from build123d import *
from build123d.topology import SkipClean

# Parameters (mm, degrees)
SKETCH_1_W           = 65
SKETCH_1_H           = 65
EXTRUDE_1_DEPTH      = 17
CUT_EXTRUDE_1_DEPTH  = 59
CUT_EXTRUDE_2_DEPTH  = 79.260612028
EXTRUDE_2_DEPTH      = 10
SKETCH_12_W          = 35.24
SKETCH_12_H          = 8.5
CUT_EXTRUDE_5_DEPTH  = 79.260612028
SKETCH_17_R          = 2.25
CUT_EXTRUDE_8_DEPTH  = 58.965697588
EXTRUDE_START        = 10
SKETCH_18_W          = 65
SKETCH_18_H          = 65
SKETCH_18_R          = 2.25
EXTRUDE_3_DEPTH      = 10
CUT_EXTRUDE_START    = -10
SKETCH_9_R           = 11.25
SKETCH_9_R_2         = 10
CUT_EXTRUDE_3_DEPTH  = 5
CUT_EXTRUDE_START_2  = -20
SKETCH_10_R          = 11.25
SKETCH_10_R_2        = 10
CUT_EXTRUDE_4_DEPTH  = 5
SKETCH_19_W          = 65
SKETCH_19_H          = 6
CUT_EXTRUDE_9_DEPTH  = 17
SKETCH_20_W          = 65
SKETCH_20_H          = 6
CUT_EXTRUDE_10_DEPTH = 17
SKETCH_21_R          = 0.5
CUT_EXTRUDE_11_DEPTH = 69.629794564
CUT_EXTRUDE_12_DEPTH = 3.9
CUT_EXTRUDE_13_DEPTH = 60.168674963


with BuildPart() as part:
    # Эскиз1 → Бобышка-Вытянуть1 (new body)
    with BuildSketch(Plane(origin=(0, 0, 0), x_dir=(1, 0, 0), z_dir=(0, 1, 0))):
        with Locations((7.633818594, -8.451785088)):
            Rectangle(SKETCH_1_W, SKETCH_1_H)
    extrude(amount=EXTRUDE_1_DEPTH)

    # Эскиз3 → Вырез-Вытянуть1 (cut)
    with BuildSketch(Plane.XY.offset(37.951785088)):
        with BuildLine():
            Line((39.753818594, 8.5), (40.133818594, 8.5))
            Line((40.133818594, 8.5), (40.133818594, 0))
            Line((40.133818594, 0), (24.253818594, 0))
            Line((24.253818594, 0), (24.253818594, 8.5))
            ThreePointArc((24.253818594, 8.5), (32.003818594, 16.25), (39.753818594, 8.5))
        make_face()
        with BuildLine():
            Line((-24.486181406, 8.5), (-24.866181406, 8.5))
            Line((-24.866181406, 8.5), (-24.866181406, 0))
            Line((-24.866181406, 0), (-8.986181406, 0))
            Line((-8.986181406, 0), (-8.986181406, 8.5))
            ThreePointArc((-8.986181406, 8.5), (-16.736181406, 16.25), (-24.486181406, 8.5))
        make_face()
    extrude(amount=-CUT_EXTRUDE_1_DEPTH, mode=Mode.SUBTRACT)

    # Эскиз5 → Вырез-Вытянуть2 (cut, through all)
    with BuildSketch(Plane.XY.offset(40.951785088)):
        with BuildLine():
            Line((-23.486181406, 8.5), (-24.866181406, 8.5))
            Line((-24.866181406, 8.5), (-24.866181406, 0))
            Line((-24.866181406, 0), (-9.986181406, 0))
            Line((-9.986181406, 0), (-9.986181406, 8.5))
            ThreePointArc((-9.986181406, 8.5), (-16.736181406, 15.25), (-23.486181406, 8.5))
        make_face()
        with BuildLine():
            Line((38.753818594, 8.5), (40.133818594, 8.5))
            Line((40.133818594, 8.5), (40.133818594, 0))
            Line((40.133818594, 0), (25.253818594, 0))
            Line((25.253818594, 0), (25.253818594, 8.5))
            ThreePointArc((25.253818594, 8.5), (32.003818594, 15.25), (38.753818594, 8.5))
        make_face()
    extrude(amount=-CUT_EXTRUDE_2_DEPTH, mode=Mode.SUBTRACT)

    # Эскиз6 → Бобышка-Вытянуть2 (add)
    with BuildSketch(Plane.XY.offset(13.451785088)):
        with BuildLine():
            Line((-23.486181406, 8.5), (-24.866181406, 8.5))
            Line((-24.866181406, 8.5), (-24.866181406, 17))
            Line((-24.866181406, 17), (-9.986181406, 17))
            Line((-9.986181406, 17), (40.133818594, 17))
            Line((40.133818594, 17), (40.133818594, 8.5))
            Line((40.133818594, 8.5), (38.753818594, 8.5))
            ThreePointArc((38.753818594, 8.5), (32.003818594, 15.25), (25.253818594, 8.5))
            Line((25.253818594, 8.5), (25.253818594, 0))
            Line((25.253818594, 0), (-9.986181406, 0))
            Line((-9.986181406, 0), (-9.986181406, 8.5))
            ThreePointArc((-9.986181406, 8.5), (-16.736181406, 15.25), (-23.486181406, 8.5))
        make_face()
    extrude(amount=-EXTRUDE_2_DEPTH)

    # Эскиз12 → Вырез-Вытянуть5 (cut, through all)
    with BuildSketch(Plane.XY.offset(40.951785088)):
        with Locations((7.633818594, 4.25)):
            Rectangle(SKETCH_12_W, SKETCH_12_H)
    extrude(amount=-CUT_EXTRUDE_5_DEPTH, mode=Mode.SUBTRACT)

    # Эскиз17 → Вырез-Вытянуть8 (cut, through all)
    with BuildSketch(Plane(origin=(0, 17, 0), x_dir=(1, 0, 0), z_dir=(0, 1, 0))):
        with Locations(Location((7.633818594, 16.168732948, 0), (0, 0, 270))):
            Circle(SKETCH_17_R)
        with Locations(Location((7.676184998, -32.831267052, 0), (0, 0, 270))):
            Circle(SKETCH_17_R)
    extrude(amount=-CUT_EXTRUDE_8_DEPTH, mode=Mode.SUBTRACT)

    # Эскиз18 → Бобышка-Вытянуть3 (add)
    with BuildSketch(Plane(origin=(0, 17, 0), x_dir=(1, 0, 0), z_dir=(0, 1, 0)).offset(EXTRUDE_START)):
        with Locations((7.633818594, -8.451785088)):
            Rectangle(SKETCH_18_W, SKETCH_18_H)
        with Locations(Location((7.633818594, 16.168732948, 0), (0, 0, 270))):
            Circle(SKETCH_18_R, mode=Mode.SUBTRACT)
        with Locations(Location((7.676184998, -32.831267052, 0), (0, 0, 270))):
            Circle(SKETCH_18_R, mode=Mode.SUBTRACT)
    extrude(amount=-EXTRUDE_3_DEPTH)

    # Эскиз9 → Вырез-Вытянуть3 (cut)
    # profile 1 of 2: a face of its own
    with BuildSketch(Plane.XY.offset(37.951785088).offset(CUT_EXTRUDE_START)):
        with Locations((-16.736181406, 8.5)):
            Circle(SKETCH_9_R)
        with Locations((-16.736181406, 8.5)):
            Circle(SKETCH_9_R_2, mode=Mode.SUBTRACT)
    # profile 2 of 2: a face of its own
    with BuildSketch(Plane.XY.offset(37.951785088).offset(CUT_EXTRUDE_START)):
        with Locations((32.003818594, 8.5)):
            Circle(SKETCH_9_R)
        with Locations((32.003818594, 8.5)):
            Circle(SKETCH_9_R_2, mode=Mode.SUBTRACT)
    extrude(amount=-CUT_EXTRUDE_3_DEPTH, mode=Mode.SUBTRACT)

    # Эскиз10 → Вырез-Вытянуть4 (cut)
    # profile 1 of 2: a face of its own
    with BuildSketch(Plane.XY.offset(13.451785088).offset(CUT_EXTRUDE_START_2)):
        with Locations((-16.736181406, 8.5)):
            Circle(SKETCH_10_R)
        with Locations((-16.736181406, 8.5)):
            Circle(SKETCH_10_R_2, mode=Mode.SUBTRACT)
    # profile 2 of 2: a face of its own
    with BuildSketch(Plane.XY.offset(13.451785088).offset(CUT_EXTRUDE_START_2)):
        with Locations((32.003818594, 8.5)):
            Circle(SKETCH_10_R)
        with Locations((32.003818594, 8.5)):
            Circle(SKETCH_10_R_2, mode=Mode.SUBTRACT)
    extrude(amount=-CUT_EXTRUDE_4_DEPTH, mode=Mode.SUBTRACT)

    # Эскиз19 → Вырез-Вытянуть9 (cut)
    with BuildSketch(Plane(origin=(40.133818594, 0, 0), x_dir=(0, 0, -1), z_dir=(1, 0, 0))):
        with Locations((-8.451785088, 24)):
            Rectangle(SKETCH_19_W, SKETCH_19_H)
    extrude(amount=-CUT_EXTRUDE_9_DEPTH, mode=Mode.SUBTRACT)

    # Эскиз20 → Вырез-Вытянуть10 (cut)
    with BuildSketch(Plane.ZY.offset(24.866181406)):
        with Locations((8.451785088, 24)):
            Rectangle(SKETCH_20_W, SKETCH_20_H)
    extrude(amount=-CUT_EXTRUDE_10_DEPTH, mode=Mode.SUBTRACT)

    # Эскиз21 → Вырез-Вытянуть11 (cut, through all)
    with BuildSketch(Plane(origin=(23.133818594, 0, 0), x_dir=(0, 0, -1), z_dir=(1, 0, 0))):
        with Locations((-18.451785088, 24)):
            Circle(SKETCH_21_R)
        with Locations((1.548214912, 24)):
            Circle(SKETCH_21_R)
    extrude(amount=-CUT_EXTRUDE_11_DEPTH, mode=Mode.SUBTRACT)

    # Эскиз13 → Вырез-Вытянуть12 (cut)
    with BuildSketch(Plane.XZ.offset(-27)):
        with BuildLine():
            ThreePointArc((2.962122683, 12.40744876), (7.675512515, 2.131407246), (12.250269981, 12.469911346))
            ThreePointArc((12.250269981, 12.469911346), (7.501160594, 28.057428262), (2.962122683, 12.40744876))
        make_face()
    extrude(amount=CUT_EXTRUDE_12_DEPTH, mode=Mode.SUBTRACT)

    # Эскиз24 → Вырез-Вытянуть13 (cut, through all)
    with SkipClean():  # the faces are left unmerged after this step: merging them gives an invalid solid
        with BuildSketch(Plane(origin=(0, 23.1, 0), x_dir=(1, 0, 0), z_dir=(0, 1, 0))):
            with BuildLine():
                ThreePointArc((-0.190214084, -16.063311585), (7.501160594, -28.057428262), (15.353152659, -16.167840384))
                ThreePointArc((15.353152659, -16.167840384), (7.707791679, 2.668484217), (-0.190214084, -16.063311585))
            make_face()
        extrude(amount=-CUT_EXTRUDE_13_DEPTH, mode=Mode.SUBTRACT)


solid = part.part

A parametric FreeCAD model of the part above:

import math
import FreeCAD as App
import Part
import Sketcher

V = App.Vector


def add_polygon(sketch, points):
    """Adds a closed chain of lines whose ends are joined by coincident constraints."""
    first, n = sketch.GeometryCount, len(points)
    for a, b in zip(points, points[1:] + points[:1]):
        sketch.addGeometry(Part.LineSegment(App.Vector(*a, 0), App.Vector(*b, 0)), False)
    for i in range(n):
        sketch.addConstraint(Sketcher.Constraint("Coincident", first + i, 2, first + (i + 1) % n, 1))

doc = App.newDocument("Part")
body = doc.addObject("PartDesign::Body", "Body")

# Sketch on XZ plane
sketch1 = doc.addObject("Sketcher::SketchObject", "Sketch")
body.addObject(sketch1)
sketch1.AttachmentSupport = (doc.XZ_Plane, [""])
sketch1.MapMode = "FlatFace"
add_polygon(sketch1, [(-25, -24), (-25, 41), (40, 41), (40, -24)])  # lines 0-3
sketch1.addConstraint(Sketcher.Constraint("Vertical", 0))
sketch1.addConstraint(Sketcher.Constraint("Horizontal", 1))
sketch1.addConstraint(Sketcher.Constraint("Vertical", 2))
sketch1.addConstraint(Sketcher.Constraint("Horizontal", 3))
sketch1.addConstraint(Sketcher.Constraint("Equal", 3, 0))
sketch1.addConstraint(Sketcher.Constraint("DistanceX", 1, 1, 1, 2, 65.0))
sketch1.addConstraint(Sketcher.Constraint("DistanceX", 0, 2, -1, 1, 24.866181))
sketch1.addConstraint(Sketcher.Constraint("DistanceY", -1, 1, 0, 2, 40.951785))
pad1 = doc.addObject("PartDesign::Pad", "Pad")
body.addObject(pad1)
pad1.Profile = sketch1
pad1.Length = 17
pad1.Reversed = True

# Sketch on XY plane
sketch2 = doc.addObject("Sketcher::SketchObject", "Sketch001")
body.addObject(sketch2)
sketch2.AttachmentSupport = (doc.XY_Plane, [""])
sketch2.MapMode = "FlatFace"
sketch2.AttachmentOffset = App.Placement(V(0, 0, 37.951785), App.Rotation())
sketch2.addGeometry(Part.LineSegment(V(40.13, 8.5, 0), V(39.75, 8.5, 0)), False)
sketch2.addGeometry(Part.ArcOfCircle(Part.Circle(V(32, 8.5, 0), V(0, 0, 1), 7.75), math.radians(0), math.radians(180)), False)
sketch2.addGeometry(Part.LineSegment(V(24.25, 8.5, 0), V(24.25, 0, 0)), False)
sketch2.addGeometry(Part.LineSegment(V(24.25, 0, 0), V(40.13, 0, 0)), False)
sketch2.addGeometry(Part.LineSegment(V(40.13, 0, 0), V(40.13, 8.5, 0)), False)
sketch2.addGeometry(Part.LineSegment(V(-24.49, 8.5, 0), V(-24.87, 8.5, 0)), False)
sketch2.addGeometry(Part.LineSegment(V(-24.87, 8.5, 0), V(-24.87, 0, 0)), False)
sketch2.addGeometry(Part.LineSegment(V(-24.87, 0, 0), V(-8.99, 0, 0)), False)
sketch2.addGeometry(Part.LineSegment(V(-8.99, 0, 0), V(-8.99, 8.5, 0)), False)
sketch2.addGeometry(Part.ArcOfCircle(Part.Circle(V(-16.74, 8.5, 0), V(0, 0, 1), 7.75), math.radians(0), math.radians(180)), False)
sketch2.addConstraint(Sketcher.Constraint("Coincident", 0, 2, 1, 1))
sketch2.addConstraint(Sketcher.Constraint("Tangent", 1, 2, 2, 1))
sketch2.addConstraint(Sketcher.Constraint("Coincident", 2, 2, 3, 1))
sketch2.addConstraint(Sketcher.Constraint("Coincident", 3, 2, 4, 1))
sketch2.addConstraint(Sketcher.Constraint("Coincident", 4, 2, 0, 1))
sketch2.addConstraint(Sketcher.Constraint("Coincident", 5, 2, 6, 1))
sketch2.addConstraint(Sketcher.Constraint("Coincident", 6, 2, 7, 1))
sketch2.addConstraint(Sketcher.Constraint("Coincident", 7, 2, 8, 1))
sketch2.addConstraint(Sketcher.Constraint("Tangent", 8, 2, 9, 1))
sketch2.addConstraint(Sketcher.Constraint("Coincident", 9, 2, 5, 1))
sketch2.addConstraint(Sketcher.Constraint("Horizontal", 0))
sketch2.addConstraint(Sketcher.Constraint("Vertical", 2))
sketch2.addConstraint(Sketcher.Constraint("Horizontal", 3))
sketch2.addConstraint(Sketcher.Constraint("Vertical", 4))
sketch2.addConstraint(Sketcher.Constraint("Horizontal", 5))
sketch2.addConstraint(Sketcher.Constraint("Vertical", 6))
sketch2.addConstraint(Sketcher.Constraint("Horizontal", 7))
sketch2.addConstraint(Sketcher.Constraint("Vertical", 8))
sketch2.addConstraint(Sketcher.Constraint("Equal", 1, 9))
sketch2.addConstraint(Sketcher.Constraint("PointOnObject", 2, 2, -1))
sketch2.addConstraint(Sketcher.Constraint("PointOnObject", 6, 2, -1))
sketch2.addConstraint(Sketcher.Constraint("Horizontal", 1, 3, 9, 3))
sketch2.addConstraint(Sketcher.Constraint("Horizontal", 9, 3, 0, 2))
sketch2.addConstraint(Sketcher.Constraint("Horizontal", 4, 2, 5, 2))
sketch2.addConstraint(Sketcher.Constraint("Equal", 0, 5))
sketch2.addConstraint(Sketcher.Constraint("Radius", 1, 7.75))
sketch2.addConstraint(Sketcher.Constraint("DistanceY", 2, 2, 2, 1, 8.5))
sketch2.addConstraint(Sketcher.Constraint("DistanceX", 0, 2, 0, 1, 0.38))
sketch2.addConstraint(Sketcher.Constraint("DistanceX", 9, 3, 1, 3, 48.74))
sketch2.addConstraint(Sketcher.Constraint("DistanceX", -1, 1, 1, 3, 32.003819))
pocket1 = doc.addObject("PartDesign::Pocket", "Pocket")
body.addObject(pocket1)
pocket1.Profile = sketch2
pocket1.Length = 59

# Sketch on XY plane
sketch3 = doc.addObject("Sketcher::SketchObject", "Sketch002")
body.addObject(sketch3)
sketch3.AttachmentSupport = (doc.XY_Plane, [""])
sketch3.MapMode = "FlatFace"
sketch3.AttachmentOffset = App.Placement(V(0, 0, 40.951785), App.Rotation())
sketch3.addGeometry(Part.LineSegment(V(-23.5, 8.5, 0), V(-24.9, 8.5, 0)), False)
sketch3.addGeometry(Part.LineSegment(V(-24.9, 8.5, 0), V(-24.9, 0, 0)), False)
sketch3.addGeometry(Part.LineSegment(V(-24.9, 0, 0), V(-10, 0, 0)), False)
sketch3.addGeometry(Part.LineSegment(V(-10, 0, 0), V(-10, 8.5, 0)), False)
sketch3.addGeometry(Part.ArcOfCircle(Part.Circle(V(-16.7, 8.5, 0), V(0, 0, 1), 6.8), math.radians(0), math.radians(180)), False)
sketch3.addGeometry(Part.LineSegment(V(40.1, 8.5, 0), V(38.8, 8.5, 0)), False)
sketch3.addGeometry(Part.ArcOfCircle(Part.Circle(V(32, 8.5, 0), V(0, 0, 1), 6.8), math.radians(0), math.radians(180)), False)
sketch3.addGeometry(Part.LineSegment(V(25.3, 8.5, 0), V(25.3, 0, 0)), False)
sketch3.addGeometry(Part.LineSegment(V(25.3, 0, 0), V(40.1, 0, 0)), False)
sketch3.addGeometry(Part.LineSegment(V(40.1, 0, 0), V(40.1, 8.5, 0)), False)
sketch3.addConstraint(Sketcher.Constraint("Coincident", 0, 2, 1, 1))
sketch3.addConstraint(Sketcher.Constraint("Coincident", 1, 2, 2, 1))
sketch3.addConstraint(Sketcher.Constraint("Coincident", 2, 2, 3, 1))
sketch3.addConstraint(Sketcher.Constraint("Tangent", 3, 2, 4, 1))
sketch3.addConstraint(Sketcher.Constraint("Coincident", 4, 2, 0, 1))
sketch3.addConstraint(Sketcher.Constraint("Coincident", 5, 2, 6, 1))
sketch3.addConstraint(Sketcher.Constraint("Tangent", 6, 2, 7, 1))
sketch3.addConstraint(Sketcher.Constraint("Coincident", 7, 2, 8, 1))
sketch3.addConstraint(Sketcher.Constraint("Coincident", 8, 2, 9, 1))
sketch3.addConstraint(Sketcher.Constraint("Coincident", 9, 2, 5, 1))
sketch3.addConstraint(Sketcher.Constraint("Horizontal", 0))
sketch3.addConstraint(Sketcher.Constraint("Vertical", 1))
sketch3.addConstraint(Sketcher.Constraint("Horizontal", 2))
sketch3.addConstraint(Sketcher.Constraint("Vertical", 3))
sketch3.addConstraint(Sketcher.Constraint("Horizontal", 5))
sketch3.addConstraint(Sketcher.Constraint("Vertical", 7))
sketch3.addConstraint(Sketcher.Constraint("Horizontal", 8))
sketch3.addConstraint(Sketcher.Constraint("Vertical", 9))
sketch3.addConstraint(Sketcher.Constraint("Equal", 4, 6))
sketch3.addConstraint(Sketcher.Constraint("PointOnObject", 1, 2, -1))
sketch3.addConstraint(Sketcher.Constraint("PointOnObject", 7, 2, -1))
sketch3.addConstraint(Sketcher.Constraint("Horizontal", 4, 3, 6, 3))
sketch3.addConstraint(Sketcher.Constraint("Horizontal", 6, 3, 0, 2))
sketch3.addConstraint(Sketcher.Constraint("Horizontal", 4, 2, 5, 2))
sketch3.addConstraint(Sketcher.Constraint("Equal", 0, 5))
sketch3.addConstraint(Sketcher.Constraint("Radius", 4, 6.75))
sketch3.addConstraint(Sketcher.Constraint("DistanceY", 1, 2, 1, 1, 8.5))
sketch3.addConstraint(Sketcher.Constraint("DistanceX", 0, 2, 0, 1, 1.38))
sketch3.addConstraint(Sketcher.Constraint("DistanceX", 4, 3, 6, 3, 48.74))
sketch3.addConstraint(Sketcher.Constraint("DistanceX", 4, 3, -1, 1, 16.736181))
pocket2 = doc.addObject("PartDesign::Pocket", "Pocket001")
body.addObject(pocket2)
pocket2.Profile = sketch3
pocket2.Type = "ThroughAll"

# Sketch on XY plane
sketch4 = doc.addObject("Sketcher::SketchObject", "Sketch003")
body.addObject(sketch4)
sketch4.AttachmentSupport = (doc.XY_Plane, [""])
sketch4.MapMode = "FlatFace"
sketch4.AttachmentOffset = App.Placement(V(0, 0, 13.451785), App.Rotation())
sketch4.addGeometry(Part.LineSegment(V(-24.9, 8.5, 0), V(-23.5, 8.5, 0)), False)
sketch4.addGeometry(Part.ArcOfCircle(Part.Circle(V(-16.7, 8.5, 0), V(0, 0, 1), 6.8), math.radians(0), math.radians(180)), False)
sketch4.addGeometry(Part.LineSegment(V(-10, 8.5, 0), V(-10, 0, 0)), False)
sketch4.addGeometry(Part.LineSegment(V(-10, 0, 0), V(25.3, 0, 0)), False)
sketch4.addGeometry(Part.LineSegment(V(25.3, 0, 0), V(25.3, 8.5, 0)), False)
sketch4.addGeometry(Part.ArcOfCircle(Part.Circle(V(32, 8.5, 0), V(0, 0, 1), 6.8), math.radians(0), math.radians(180)), False)
sketch4.addGeometry(Part.LineSegment(V(38.8, 8.5, 0), V(40.1, 8.5, 0)), False)
sketch4.addGeometry(Part.LineSegment(V(40.1, 8.5, 0), V(40.1, 17, 0)), False)
sketch4.addGeometry(Part.LineSegment(V(40.1, 17, 0), V(-24.9, 17, 0)), False)
sketch4.addGeometry(Part.LineSegment(V(-24.9, 17, 0), V(-24.9, 8.5, 0)), False)
sketch4.addConstraint(Sketcher.Constraint("Coincident", 0, 2, 1, 2))
sketch4.addConstraint(Sketcher.Constraint("Tangent", 1, 1, 2, 1))
sketch4.addConstraint(Sketcher.Constraint("Coincident", 2, 2, 3, 1))
sketch4.addConstraint(Sketcher.Constraint("Coincident", 3, 2, 4, 1))
sketch4.addConstraint(Sketcher.Constraint("Tangent", 4, 2, 5, 2))
sketch4.addConstraint(Sketcher.Constraint("Coincident", 5, 1, 6, 1))
sketch4.addConstraint(Sketcher.Constraint("Coincident", 6, 2, 7, 1))
sketch4.addConstraint(Sketcher.Constraint("Coincident", 7, 2, 8, 1))
sketch4.addConstraint(Sketcher.Constraint("Coincident", 8, 2, 9, 1))
sketch4.addConstraint(Sketcher.Constraint("Coincident", 9, 2, 0, 1))
sketch4.addConstraint(Sketcher.Constraint("Horizontal", 0))
sketch4.addConstraint(Sketcher.Constraint("Vertical", 2))
sketch4.addConstraint(Sketcher.Constraint("Horizontal", 3))
sketch4.addConstraint(Sketcher.Constraint("Vertical", 4))
sketch4.addConstraint(Sketcher.Constraint("Horizontal", 6))
sketch4.addConstraint(Sketcher.Constraint("Vertical", 7))
sketch4.addConstraint(Sketcher.Constraint("Horizontal", 8))
sketch4.addConstraint(Sketcher.Constraint("Vertical", 9))
sketch4.addConstraint(Sketcher.Constraint("Equal", 1, 5))
sketch4.addConstraint(Sketcher.Constraint("PointOnObject", 2, 2, -1))
sketch4.addConstraint(Sketcher.Constraint("Horizontal", 1, 3, 5, 3))
sketch4.addConstraint(Sketcher.Constraint("Horizontal", 5, 3, 0, 2))
sketch4.addConstraint(Sketcher.Constraint("Horizontal", 4, 2, 5, 1))
sketch4.addConstraint(Sketcher.Constraint("Equal", 0, 6))
sketch4.addConstraint(Sketcher.Constraint("Equal", 4, 7))
sketch4.addConstraint(Sketcher.Constraint("DistanceX", 8, 2, 8, 1, 65.0))
sketch4.addConstraint(Sketcher.Constraint("Radius", 1, 6.75))
sketch4.addConstraint(Sketcher.Constraint("DistanceY", 2, 2, 2, 1, 8.5))
sketch4.addConstraint(Sketcher.Constraint("DistanceX", 0, 1, 0, 2, 1.38))
sketch4.addConstraint(Sketcher.Constraint("DistanceX", 1, 3, -1, 1, 16.736181))
pad2 = doc.addObject("PartDesign::Pad", "Pad001")
body.addObject(pad2)
pad2.Profile = sketch4
pad2.Length = 10
pad2.Reversed = True

# Sketch on XY plane
sketch5 = doc.addObject("Sketcher::SketchObject", "Sketch004")
body.addObject(sketch5)
sketch5.AttachmentSupport = (doc.XY_Plane, [""])
sketch5.MapMode = "FlatFace"
sketch5.AttachmentOffset = App.Placement(V(0, 0, 40.951785), App.Rotation())
add_polygon(sketch5, [(-10, 8), (-10, 0), (25, 0), (25, 8)])  # lines 0-3
sketch5.addConstraint(Sketcher.Constraint("Vertical", 0))
sketch5.addConstraint(Sketcher.Constraint("Horizontal", 1))
sketch5.addConstraint(Sketcher.Constraint("Vertical", 2))
sketch5.addConstraint(Sketcher.Constraint("Horizontal", 3))
sketch5.addConstraint(Sketcher.Constraint("PointOnObject", 0, 2, -1))
sketch5.addConstraint(Sketcher.Constraint("DistanceY", 0, 2, 0, 1, 8.5))
sketch5.addConstraint(Sketcher.Constraint("DistanceX", 1, 1, 1, 2, 35.24))
sketch5.addConstraint(Sketcher.Constraint("DistanceX", 0, 2, -1, 1, 9.986181))
pocket3 = doc.addObject("PartDesign::Pocket", "Pocket002")
body.addObject(pocket3)
pocket3.Profile = sketch5
pocket3.Type = "ThroughAll"

# Sketch on XZ plane
sketch6 = doc.addObject("Sketcher::SketchObject", "Sketch005")
body.addObject(sketch6)
sketch6.AttachmentSupport = (doc.XZ_Plane, [""])
sketch6.MapMode = "FlatFace"
sketch6.AttachmentOffset = App.Placement(V(0, 0, -17), App.Rotation())
sketch6.addGeometry(Part.Circle(V(7.6, -16.2, 0), V(0, 0, 1), 2.2), False)
sketch6.addGeometry(Part.Circle(V(7.7, 32.8, 0), V(0, 0, 1), 2.2), False)
sketch6.addConstraint(Sketcher.Constraint("Equal", 0, 1))
sketch6.addConstraint(Sketcher.Constraint("Diameter", 0, 4.5))
sketch6.addConstraint(Sketcher.Constraint("DistanceY", 0, 3, 1, 3, 49.0))
sketch6.addConstraint(Sketcher.Constraint("DistanceX", -1, 1, 0, 3, 7.633819))
sketch6.addConstraint(Sketcher.Constraint("DistanceY", 0, 3, -1, 1, 16.168733))
sketch6.addConstraint(Sketcher.Constraint("DistanceX", -1, 1, 1, 3, 7.676185))
pocket4 = doc.addObject("PartDesign::Pocket", "Pocket003")
body.addObject(pocket4)
pocket4.Profile = sketch6
pocket4.Type = "ThroughAll"
pocket4.Reversed = True

# Sketch on XZ plane
sketch7 = doc.addObject("Sketcher::SketchObject", "Sketch006")
body.addObject(sketch7)
sketch7.AttachmentSupport = (doc.XZ_Plane, [""])
sketch7.MapMode = "FlatFace"
sketch7.AttachmentOffset = App.Placement(V(0, 0, -27), App.Rotation())
add_polygon(sketch7, [(-24.9, -24), (-24.9, 41), (40.1, 41), (40.1, -24)])  # lines 0-3
sketch7.addGeometry(Part.Circle(V(7.7, 32.8, 0), V(0, 0, 1), 2.2), False)  # 4
sketch7.addGeometry(Part.Circle(V(7.6, -16.2, 0), V(0, 0, 1), 2.2), False)  # 5
sketch7.addConstraint(Sketcher.Constraint("Vertical", 0))
sketch7.addConstraint(Sketcher.Constraint("Horizontal", 1))
sketch7.addConstraint(Sketcher.Constraint("Vertical", 2))
sketch7.addConstraint(Sketcher.Constraint("Horizontal", 3))
sketch7.addConstraint(Sketcher.Constraint("Equal", 4, 5))
sketch7.addConstraint(Sketcher.Constraint("Equal", 3, 0))
sketch7.addConstraint(Sketcher.Constraint("Diameter", 4, 4.5))
sketch7.addConstraint(Sketcher.Constraint("DistanceX", 1, 1, 1, 2, 65.0))
sketch7.addConstraint(Sketcher.Constraint("DistanceY", 5, 3, 4, 3, 49.0))
sketch7.addConstraint(Sketcher.Constraint("DistanceX", 0, 2, 5, 3, 32.5))
sketch7.addConstraint(Sketcher.Constraint("DistanceX", -1, 1, 5, 3, 7.633819))
sketch7.addConstraint(Sketcher.Constraint("DistanceY", 4, 3, 0, 2, 8.120518))
sketch7.addConstraint(Sketcher.Constraint("DistanceX", -1, 1, 4, 3, 7.676185))
sketch7.addConstraint(Sketcher.Constraint("DistanceY", -1, 1, 4, 3, 32.831267))
pad3 = doc.addObject("PartDesign::Pad", "Pad002")
body.addObject(pad3)
pad3.Profile = sketch7
pad3.Length = 10

# Sketch on XY plane
sketch8 = doc.addObject("Sketcher::SketchObject", "Sketch007")
body.addObject(sketch8)
sketch8.AttachmentSupport = (doc.XY_Plane, [""])
sketch8.MapMode = "FlatFace"
sketch8.AttachmentOffset = App.Placement(V(0, 0, 27.951785), App.Rotation())
sketch8.addGeometry(Part.Circle(V(-17, 8, 0), V(0, 0, 1), 11), False)
sketch8.addGeometry(Part.Circle(V(-17, 8, 0), V(0, 0, 1), 10), False)
sketch8.addGeometry(Part.Circle(V(32, 8, 0), V(0, 0, 1), 11), False)
sketch8.addGeometry(Part.Circle(V(32, 8, 0), V(0, 0, 1), 10), False)
sketch8.addConstraint(Sketcher.Constraint("Coincident", 1, 3, 0, 3))
sketch8.addConstraint(Sketcher.Constraint("Coincident", 3, 3, 2, 3))
sketch8.addConstraint(Sketcher.Constraint("Equal", 0, 2))
sketch8.addConstraint(Sketcher.Constraint("Equal", 1, 3))
sketch8.addConstraint(Sketcher.Constraint("Horizontal", 1, 3, 2, 3))
sketch8.addConstraint(Sketcher.Constraint("Diameter", 1, 20.0))
sketch8.addConstraint(Sketcher.Constraint("Diameter", 0, 22.5))
sketch8.addConstraint(Sketcher.Constraint("DistanceY", -1, 1, 0, 3, 8.5))
sketch8.addConstraint(Sketcher.Constraint("DistanceX", 0, 3, 2, 3, 48.74))
sketch8.addConstraint(Sketcher.Constraint("DistanceX", 0, 3, -1, 1, 16.736181))
pocket5 = doc.addObject("PartDesign::Pocket", "Pocket004")
body.addObject(pocket5)
pocket5.Profile = sketch8
pocket5.Length = 5

# Sketch on XY plane
sketch9 = doc.addObject("Sketcher::SketchObject", "Sketch008")
body.addObject(sketch9)
sketch9.AttachmentSupport = (doc.XY_Plane, [""])
sketch9.MapMode = "FlatFace"
sketch9.AttachmentOffset = App.Placement(V(0, 0, -6.548215), App.Rotation())
sketch9.addGeometry(Part.Circle(V(-17, 8, 0), V(0, 0, 1), 11), False)
sketch9.addGeometry(Part.Circle(V(-17, 8, 0), V(0, 0, 1), 10), False)
sketch9.addGeometry(Part.Circle(V(32, 8, 0), V(0, 0, 1), 11), False)
sketch9.addGeometry(Part.Circle(V(32, 8, 0), V(0, 0, 1), 10), False)
sketch9.addConstraint(Sketcher.Constraint("Coincident", 1, 3, 0, 3))
sketch9.addConstraint(Sketcher.Constraint("Coincident", 3, 3, 2, 3))
sketch9.addConstraint(Sketcher.Constraint("Equal", 0, 2))
sketch9.addConstraint(Sketcher.Constraint("Equal", 1, 3))
sketch9.addConstraint(Sketcher.Constraint("Horizontal", 1, 3, 2, 3))
sketch9.addConstraint(Sketcher.Constraint("Diameter", 1, 20.0))
sketch9.addConstraint(Sketcher.Constraint("Diameter", 0, 22.5))
sketch9.addConstraint(Sketcher.Constraint("DistanceY", -1, 1, 0, 3, 8.5))
sketch9.addConstraint(Sketcher.Constraint("DistanceX", 0, 3, 2, 3, 48.74))
sketch9.addConstraint(Sketcher.Constraint("DistanceX", 0, 3, -1, 1, 16.736181))
pocket6 = doc.addObject("PartDesign::Pocket", "Pocket005")
body.addObject(pocket6)
pocket6.Profile = sketch9
pocket6.Length = 5

# Sketch on YZ plane
sketch10 = doc.addObject("Sketcher::SketchObject", "Sketch009")
body.addObject(sketch10)
sketch10.AttachmentSupport = (doc.YZ_Plane, [""])
sketch10.MapMode = "FlatFace"
sketch10.AttachmentOffset = App.Placement(V(0, 0, 40.133819), App.Rotation())
add_polygon(sketch10, [(27, 41), (21, 41), (21, -24), (27, -24)])  # lines 0-3
sketch10.addConstraint(Sketcher.Constraint("Horizontal", 0))
sketch10.addConstraint(Sketcher.Constraint("Vertical", 1))
sketch10.addConstraint(Sketcher.Constraint("Horizontal", 2))
sketch10.addConstraint(Sketcher.Constraint("Vertical", 3))
sketch10.addConstraint(Sketcher.Constraint("DistanceX", 0, 2, 0, 1, 6.0))
sketch10.addConstraint(Sketcher.Constraint("DistanceY", 1, 2, 1, 1, 65.0))
sketch10.addConstraint(Sketcher.Constraint("DistanceX", -1, 1, 0, 2, 21.0))
sketch10.addConstraint(Sketcher.Constraint("DistanceY", -1, 1, 0, 2, 40.951785))
pocket7 = doc.addObject("PartDesign::Pocket", "Pocket006")
body.addObject(pocket7)
pocket7.Profile = sketch10
pocket7.Length = 17

# Sketch on YZ plane
sketch11 = doc.addObject("Sketcher::SketchObject", "Sketch010")
body.addObject(sketch11)
sketch11.AttachmentSupport = (doc.YZ_Plane, [""])
sketch11.MapMode = "FlatFace"
sketch11.AttachmentOffset = App.Placement(V(0, 0, -24.866181), App.Rotation())
add_polygon(sketch11, [(27, -24), (21, -24), (21, 41), (27, 41)])  # lines 0-3
sketch11.addConstraint(Sketcher.Constraint("Horizontal", 0))
sketch11.addConstraint(Sketcher.Constraint("Vertical", 1))
sketch11.addConstraint(Sketcher.Constraint("Horizontal", 2))
sketch11.addConstraint(Sketcher.Constraint("Vertical", 3))
sketch11.addConstraint(Sketcher.Constraint("DistanceX", 0, 2, 0, 1, 6.0))
sketch11.addConstraint(Sketcher.Constraint("DistanceY", 1, 1, 1, 2, 65.0))
sketch11.addConstraint(Sketcher.Constraint("DistanceX", -1, 1, 0, 2, 21.0))
sketch11.addConstraint(Sketcher.Constraint("DistanceY", 0, 2, -1, 1, 24.048215))
pocket8 = doc.addObject("PartDesign::Pocket", "Pocket007")
body.addObject(pocket8)
pocket8.Profile = sketch11
pocket8.Length = 17
pocket8.Reversed = True

# Sketch on YZ plane
sketch12 = doc.addObject("Sketcher::SketchObject", "Sketch011")
body.addObject(sketch12)
sketch12.AttachmentSupport = (doc.YZ_Plane, [""])
sketch12.MapMode = "FlatFace"
sketch12.AttachmentOffset = App.Placement(V(0, 0, 23.133819), App.Rotation())
sketch12.addGeometry(Part.Circle(V(24, 18.5, 0), V(0, 0, 1), 0.5), False)
sketch12.addGeometry(Part.Circle(V(24, -1.5, 0), V(0, 0, 1), 0.5), False)
sketch12.addConstraint(Sketcher.Constraint("Equal", 0, 1))
sketch12.addConstraint(Sketcher.Constraint("Vertical", 0, 3, 1, 3))
sketch12.addConstraint(Sketcher.Constraint("Diameter", 0, 1.0))
sketch12.addConstraint(Sketcher.Constraint("DistanceX", -1, 1, 0, 3, 24.0))
sketch12.addConstraint(Sketcher.Constraint("DistanceY", 1, 3, 0, 3, 20.0))
sketch12.addConstraint(Sketcher.Constraint("DistanceY", -1, 1, 0, 3, 18.451785))
pocket9 = doc.addObject("PartDesign::Pocket", "Pocket008")
body.addObject(pocket9)
pocket9.Profile = sketch12
pocket9.Type = "ThroughAll"

# Sketch on XZ plane
sketch13 = doc.addObject("Sketcher::SketchObject", "Sketch012")
body.addObject(sketch13)
sketch13.AttachmentSupport = (doc.XZ_Plane, [""])
sketch13.MapMode = "FlatFace"
sketch13.AttachmentOffset = App.Placement(V(0, 0, -27), App.Rotation())
sketch13.addGeometry(Part.ArcOfCircle(Part.Circle(V(8, 8, 0), V(0, 0, 1), 6), math.radians(139), math.radians(402)), False)
sketch13.addGeometry(Part.ArcOfCircle(Part.Circle(V(8, 20, 0), V(0, 0, 1), 8), math.radians(-56), math.radians(237)), False)
sketch13.addConstraint(Sketcher.Constraint("Coincident", 0, 1, 1, 2))
sketch13.addConstraint(Sketcher.Constraint("Coincident", 1, 1, 0, 2))
sketch13.addConstraint(Sketcher.Constraint("Radius", 0, 6.2))
sketch13.addConstraint(Sketcher.Constraint("Radius", 1, 8.5))
sketch13.addConstraint(Sketcher.Constraint("DistanceX", 0, 1, 1, 3, 4.596199))
sketch13.addConstraint(Sketcher.Constraint("DistanceX", -1, 1, 0, 3, 7.633819))
sketch13.addConstraint(Sketcher.Constraint("DistanceX", -1, 1, 1, 3, 7.558322))
sketch13.addConstraint(Sketcher.Constraint("DistanceY", -1, 1, 1, 3, 19.55762))
pocket10 = doc.addObject("PartDesign::Pocket", "Pocket009")
body.addObject(pocket10)
pocket10.Profile = sketch13
pocket10.Length = 3.9
pocket10.Reversed = True

# Sketch on XZ plane
sketch14 = doc.addObject("Sketcher::SketchObject", "Sketch013")
body.addObject(sketch14)
sketch14.AttachmentSupport = (doc.XZ_Plane, [""])
sketch14.MapMode = "FlatFace"
sketch14.AttachmentOffset = App.Placement(V(0, 0, -23.1), App.Rotation())
sketch14.addGeometry(Part.ArcOfCircle(Part.Circle(V(8, 20, 0), V(0, 0, 1), 8), math.radians(-24), math.radians(204)), False)
sketch14.addGeometry(Part.ArcOfCircle(Part.Circle(V(8, 8, 0), V(0, 0, 1), 11), math.radians(135), math.radians(405)), False)
sketch14.addConstraint(Sketcher.Constraint("Coincident", 0, 1, 1, 2))
sketch14.addConstraint(Sketcher.Constraint("Coincident", 1, 1, 0, 2))
sketch14.addConstraint(Sketcher.Constraint("Radius", 1, 11.0))
sketch14.addConstraint(Sketcher.Constraint("Radius", 0, 8.5))
sketch14.addConstraint(Sketcher.Constraint("DistanceX", -1, 1, 0, 3, 7.558322))
sketch14.addConstraint(Sketcher.Constraint("DistanceY", -1, 1, 0, 3, 19.55762))
sketch14.addConstraint(Sketcher.Constraint("DistanceX", -1, 1, 1, 3, 7.633819))
sketch14.addConstraint(Sketcher.Constraint("DistanceY", -1, 1, 0, 1, 16.16784))
pocket11 = doc.addObject("PartDesign::Pocket", "Pocket010")
body.addObject(pocket11)
pocket11.Profile = sketch14
pocket11.Type = "ThroughAll"
pocket11.Reversed = True

doc.recompute()
